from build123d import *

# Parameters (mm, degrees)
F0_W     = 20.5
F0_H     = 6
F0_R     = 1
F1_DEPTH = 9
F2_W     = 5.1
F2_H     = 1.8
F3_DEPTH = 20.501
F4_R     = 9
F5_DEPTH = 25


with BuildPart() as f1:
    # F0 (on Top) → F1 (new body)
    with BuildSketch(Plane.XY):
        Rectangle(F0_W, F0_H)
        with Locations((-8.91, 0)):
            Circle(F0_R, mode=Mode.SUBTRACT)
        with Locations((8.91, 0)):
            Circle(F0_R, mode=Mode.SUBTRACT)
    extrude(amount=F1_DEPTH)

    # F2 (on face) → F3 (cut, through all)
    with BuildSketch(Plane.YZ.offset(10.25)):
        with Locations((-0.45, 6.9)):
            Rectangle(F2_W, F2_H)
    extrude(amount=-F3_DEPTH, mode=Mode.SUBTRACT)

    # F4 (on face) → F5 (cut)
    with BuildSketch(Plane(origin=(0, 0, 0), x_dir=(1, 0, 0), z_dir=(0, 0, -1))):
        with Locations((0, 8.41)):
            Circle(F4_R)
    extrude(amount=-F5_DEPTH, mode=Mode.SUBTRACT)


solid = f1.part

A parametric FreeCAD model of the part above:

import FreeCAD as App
import Part
import Sketcher

doc = App.newDocument("Part")
params = doc.addObject("Spreadsheet::Sheet", "Params")
for row, (alias, value) in enumerate([
    ("sketch1_diameter", "2 mm"),
    ("sketch1_height", "6 mm"),
    ("sketch1_width", "20.5 mm"),
    ("pad1_length", "9 mm"),
    ("sketch2_width", "5.1 mm"),
    ("sketch2_height", "1.8 mm"),
    ("sketch3_diameter", "18 mm"),
    ("pocket2_length", "25 mm"),
], start=1):
    params.set(f"A{row}", alias)
    params.set(f"B{row}", "=" + value)
    params.setAlias(f"B{row}", alias)

body = doc.addObject("PartDesign::Body", "Body")

# Sketch on XY plane
sketch1 = doc.addObject("Sketcher::SketchObject", "Sketch")
body.addObject(sketch1)
sketch1.AttachmentSupport = (doc.XY_Plane, [""])
sketch1.MapMode = "FlatFace"
sketch1.addGeometry(Part.LineSegment(App.Vector(-10.25, 3, 0), App.Vector(-10.25, -3, 0)), False)
sketch1.addGeometry(Part.LineSegment(App.Vector(-10.25, -3, 0), App.Vector(10.25, -3, 0)), False)
sketch1.addGeometry(Part.LineSegment(App.Vector(10.25, -3, 0), App.Vector(10.25, 3, 0)), False)
sketch1.addGeometry(Part.LineSegment(App.Vector(10.25, 3, 0), App.Vector(-10.25, 3, 0)), False)
sketch1.addGeometry(Part.Circle(App.Vector(-8.91, 0, 0), App.Vector(0, 0, 1), 1), False)
sketch1.addGeometry(Part.Circle(App.Vector(8.91, 0, 0), App.Vector(0, 0, 1), 1), False)
sketch1.addConstraint(Sketcher.Constraint("Coincident", 0, 2, 1, 1))
sketch1.addConstraint(Sketcher.Constraint("Coincident", 1, 2, 2, 1))
sketch1.addConstraint(Sketcher.Constraint("Coincident", 2, 2, 3, 1))
sketch1.addConstraint(Sketcher.Constraint("Coincident", 3, 2, 0, 1))
sketch1.addConstraint(Sketcher.Constraint("Vertical", 0))
sketch1.addConstraint(Sketcher.Constraint("Horizontal", 1))
sketch1.addConstraint(Sketcher.Constraint("Vertical", 2))
sketch1.addConstraint(Sketcher.Constraint("Horizontal", 3))
sketch1.addConstraint(Sketcher.Constraint("Equal", 4, 5))
sketch1.addConstraint(Sketcher.Constraint("Symmetric", 4, 3, 5, 3, -1, 1))
sketch1.addConstraint(Sketcher.Constraint("Symmetric", 0, 2, 2, 2, -1, 1))
sketch1.addConstraint(Sketcher.Constraint("PointOnObject", 4, 3, -1))
sketch1.addConstraint(Sketcher.Constraint("Diameter", 4, 2.0))
sketch1.addConstraint(Sketcher.Constraint("DistanceY", 0, 2, 0, 1, 6.0))
sketch1.addConstraint(Sketcher.Constraint("DistanceX", 1, 1, 1, 2, 20.5))
sketch1.addConstraint(Sketcher.Constraint("DistanceX", 4, 3, -1, 1, 8.91))
sketch1.setExpression("Constraints[12]", "Params.sketch1_diameter")
sketch1.setExpression("Constraints[13]", "Params.sketch1_height")
sketch1.setExpression("Constraints[14]", "Params.sketch1_width")
pad1 = doc.addObject("PartDesign::Pad", "Pad")
body.addObject(pad1)
pad1.Profile = sketch1
pad1.setExpression("Length", "Params.pad1_length")

# Sketch on YZ plane
sketch2 = doc.addObject("Sketcher::SketchObject", "Sketch001")
body.addObject(sketch2)
sketch2.AttachmentSupport = (doc.YZ_Plane, [""])
sketch2.MapMode = "FlatFace"
sketch2.AttachmentOffset = App.Placement(App.Vector(0, 0, 10.25), App.Rotation())
sketch2.addGeometry(Part.LineSegment(App.Vector(-3, 7.8, 0), App.Vector(-3, 6, 0)), False)
sketch2.addGeometry(Part.LineSegment(App.Vector(-3, 6, 0), App.Vector(2.1, 6, 0)), False)
sketch2.addGeometry(Part.LineSegment(App.Vector(2.1, 6, 0), App.Vector(2.1, 7.8, 0)), False)
sketch2.addGeometry(Part.LineSegment(App.Vector(2.1, 7.8, 0), App.Vector(-3, 7.8, 0)), False)
sketch2.addConstraint(Sketcher.Constraint("Coincident", 0, 2, 1, 1))
sketch2.addConstraint(Sketcher.Constraint("Coincident", 1, 2, 2, 1))
sketch2.addConstraint(Sketcher.Constraint("Coincident", 2, 2, 3, 1))
sketch2.addConstraint(Sketcher.Constraint("Coincident", 3, 2, 0, 1))
sketch2.addConstraint(Sketcher.Constraint("Vertical", 0))
sketch2.addConstraint(Sketcher.Constraint("Horizontal", 1))
sketch2.addConstraint(Sketcher.Constraint("Vertical", 2))
sketch2.addConstraint(Sketcher.Constraint("Horizontal", 3))
sketch2.addConstraint(Sketcher.Constraint("DistanceX", 1, 1, 1, 2, 5.1))
sketch2.addConstraint(Sketcher.Constraint("DistanceY", 0, 2, 0, 1, 1.8))
sketch2.addConstraint(Sketcher.Constraint("DistanceX", 0, 2, -1, 1, 3.0))
sketch2.addConstraint(Sketcher.Constraint("DistanceY", -1, 1, 0, 2, 6.0))
sketch2.setExpression("Constraints[8]", "Params.sketch2_width")
sketch2.setExpression("Constraints[9]", "Params.sketch2_height")
pocket1 = doc.addObject("PartDesign::Pocket", "Pocket")
body.addObject(pocket1)
pocket1.Profile = sketch2
pocket1.Type = "ThroughAll"

# Sketch on XY plane
sketch3 = doc.addObject("Sketcher::SketchObject", "Sketch002")
body.addObject(sketch3)
sketch3.AttachmentSupport = (doc.XY_Plane, [""])
sketch3.MapMode = "FlatFace"
sketch3.addGeometry(Part.Circle(App.Vector(0, -8.41, 0), App.Vector(0, 0, 1), 9), False)
sketch3.addConstraint(Sketcher.Constraint("PointOnObject", 0, 3, -2))
sketch3.addConstraint(Sketcher.Constraint("Diameter", 0, 18.0))
sketch3.addConstraint(Sketcher.Constraint("DistanceY", 0, 3, -1, 1, 8.41))
sketch3.setExpression("Constraints[1]", "Params.sketch3_diameter")
pocket2 = doc.addObject("PartDesign::Pocket", "Pocket001")
body.addObject(pocket2)
pocket2.Profile = sketch3
pocket2.setExpression("Length", "Params.pocket2_length")
pocket2.Reversed = True

doc.recompute()
